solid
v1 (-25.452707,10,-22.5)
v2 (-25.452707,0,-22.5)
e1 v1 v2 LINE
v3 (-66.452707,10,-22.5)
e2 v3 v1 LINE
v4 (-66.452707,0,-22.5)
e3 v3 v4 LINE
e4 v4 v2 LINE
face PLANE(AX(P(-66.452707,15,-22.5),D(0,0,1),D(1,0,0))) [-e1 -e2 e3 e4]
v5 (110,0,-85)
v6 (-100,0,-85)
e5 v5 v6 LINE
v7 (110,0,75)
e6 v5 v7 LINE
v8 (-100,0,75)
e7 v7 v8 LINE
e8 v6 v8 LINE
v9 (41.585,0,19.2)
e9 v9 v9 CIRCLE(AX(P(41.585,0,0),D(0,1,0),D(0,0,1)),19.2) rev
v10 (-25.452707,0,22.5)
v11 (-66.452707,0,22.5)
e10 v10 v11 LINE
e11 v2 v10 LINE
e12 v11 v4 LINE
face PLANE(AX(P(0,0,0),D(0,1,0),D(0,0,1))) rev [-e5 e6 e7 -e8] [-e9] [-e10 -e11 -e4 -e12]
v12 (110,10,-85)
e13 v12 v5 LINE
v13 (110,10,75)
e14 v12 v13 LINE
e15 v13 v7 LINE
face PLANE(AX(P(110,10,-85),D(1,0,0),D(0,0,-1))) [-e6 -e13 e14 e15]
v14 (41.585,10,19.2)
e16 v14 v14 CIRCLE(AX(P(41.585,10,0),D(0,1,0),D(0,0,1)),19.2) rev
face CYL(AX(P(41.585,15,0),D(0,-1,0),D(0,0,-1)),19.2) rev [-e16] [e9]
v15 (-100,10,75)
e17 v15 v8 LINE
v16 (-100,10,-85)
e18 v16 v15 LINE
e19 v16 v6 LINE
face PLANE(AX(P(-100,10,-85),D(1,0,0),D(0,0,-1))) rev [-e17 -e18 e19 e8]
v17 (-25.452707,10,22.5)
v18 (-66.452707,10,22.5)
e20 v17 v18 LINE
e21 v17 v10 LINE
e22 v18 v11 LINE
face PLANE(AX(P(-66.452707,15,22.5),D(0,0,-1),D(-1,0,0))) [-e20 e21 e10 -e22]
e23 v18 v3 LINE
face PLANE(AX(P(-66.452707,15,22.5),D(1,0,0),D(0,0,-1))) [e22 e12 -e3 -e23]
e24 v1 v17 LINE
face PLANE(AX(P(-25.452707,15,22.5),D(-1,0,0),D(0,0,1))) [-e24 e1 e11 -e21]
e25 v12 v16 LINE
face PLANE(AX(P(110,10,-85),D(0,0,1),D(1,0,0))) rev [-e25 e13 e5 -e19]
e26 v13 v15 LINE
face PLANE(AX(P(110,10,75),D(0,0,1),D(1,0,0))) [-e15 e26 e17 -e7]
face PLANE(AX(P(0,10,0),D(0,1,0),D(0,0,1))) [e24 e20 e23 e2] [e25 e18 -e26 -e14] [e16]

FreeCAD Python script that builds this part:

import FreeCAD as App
import Part
import Sketcher
from FreeCAD import Vector

doc = App.newDocument("Part")
params = doc.addObject("Spreadsheet::Sheet", "Params")
for row, (alias, value) in enumerate([
    ("sketch1_width", "210 mm"),
    ("sketch1_height", "160 mm"),
    ("pad1_length", "10 mm"),
    ("sketch2_diameter", "38.4 mm"),
    ("sketch2_width", "41 mm"),
    ("sketch2_height", "45 mm"),
], start=1):
    params.set(f"A{row}", alias)
    params.set(f"B{row}", "=" + value)
    params.setAlias(f"B{row}", alias)

body = doc.addObject("PartDesign::Body", "Body")

# Sketch on XZ plane
sketch1 = body.newObject("Sketcher::SketchObject", "Sketch")
sketch1.AttachmentSupport = (doc.getObject("XZ_Plane"), [""])
sketch1.MapMode = "FlatFace"
sketch1.addGeometry(Part.LineSegment(Vector(-100, -85, 0), Vector(-100, 75, 0)), False)
sketch1.addGeometry(Part.LineSegment(Vector(-100, 75, 0), Vector(110, 75, 0)), False)
sketch1.addGeometry(Part.LineSegment(Vector(110, 75, 0), Vector(110, -85, 0)), False)
sketch1.addGeometry(Part.LineSegment(Vector(110, -85, 0), Vector(-100, -85, 0)), False)
sketch1.addConstraint(Sketcher.Constraint("Coincident", 0, 2, 1, 1))
sketch1.addConstraint(Sketcher.Constraint("Coincident", 1, 2, 2, 1))
sketch1.addConstraint(Sketcher.Constraint("Coincident", 2, 2, 3, 1))
sketch1.addConstraint(Sketcher.Constraint("Coincident", 3, 2, 0, 1))
sketch1.addConstraint(Sketcher.Constraint("Vertical", 0))
sketch1.addConstraint(Sketcher.Constraint("Horizontal", 1))
sketch1.addConstraint(Sketcher.Constraint("Vertical", 2))
sketch1.addConstraint(Sketcher.Constraint("Horizontal", 3))
sketch1.addConstraint(Sketcher.Constraint("DistanceX", 1, 1, 1, 2, 210.0))
sketch1.addConstraint(Sketcher.Constraint("DistanceY", 0, 1, 0, 2, 160.0))
sketch1.addConstraint(Sketcher.Constraint("DistanceX", 0, 2, -1, 1, 100.0))
sketch1.addConstraint(Sketcher.Constraint("DistanceY", -1, 1, 0, 2, 75.0))
sketch1.setExpression("Constraints[8]", "Params.sketch1_width")
sketch1.setExpression("Constraints[9]", "Params.sketch1_height")
pad1 = body.newObject("PartDesign::Pad", "Pad")
pad1.Profile = sketch1
pad1.setExpression("Length", "Params.pad1_length")
pad1.Reversed = True

# Sketch on XZ plane
sketch2 = body.newObject("Sketcher::SketchObject", "Sketch001")
sketch2.AttachmentSupport = (doc.getObject("XZ_Plane"), [""])
sketch2.MapMode = "FlatFace"
sketch2.addGeometry(Part.Circle(Vector(41.585, 0, 0), Vector(0, 0, 1), 19.2), False)
sketch2.addGeometry(Part.LineSegment(Vector(-66.452707, -22.5, 0), Vector(-66.452707, 22.5, 0)), False)
sketch2.addGeometry(Part.LineSegment(Vector(-66.452707, 22.5, 0), Vector(-25.452707, 22.5, 0)), False)
sketch2.addGeometry(Part.LineSegment(Vector(-25.452707, 22.5, 0), Vector(-25.452707, -22.5, 0)), False)
sketch2.addGeometry(Part.LineSegment(Vector(-25.452707, -22.5, 0), Vector(-66.452707, -22.5, 0)), False)
sketch2.addConstraint(Sketcher.Constraint("Coincident", 1, 2, 2, 1))
sketch2.addConstraint(Sketcher.Constraint("Coincident", 2, 2, 3, 1))
sketch2.addConstraint(Sketcher.Constraint("Coincident", 3, 2, 4, 1))
sketch2.addConstraint(Sketcher.Constraint("Coincident", 4, 2, 1, 1))
sketch2.addConstraint(Sketcher.Constraint("Vertical", 1))
sketch2.addConstraint(Sketcher.Constraint("Horizontal", 2))
sketch2.addConstraint(Sketcher.Constraint("Vertical", 3))
sketch2.addConstraint(Sketcher.Constraint("Horizontal", 4))
sketch2.addConstraint(Sketcher.Constraint("PointOnObject", 0, 3, -1))
sketch2.addConstraint(Sketcher.Constraint("Diameter", 0, 38.4))
sketch2.addConstraint(Sketcher.Constraint("DistanceX", 2, 1, 2, 2, 41.0))
sketch2.addConstraint(Sketcher.Constraint("DistanceY", 1, 1, 1, 2, 45.0))
sketch2.addConstraint(Sketcher.Constraint("DistanceY", -1, 1, 1, 2, 22.5))
sketch2.addConstraint(Sketcher.Constraint("DistanceX", -1, 1, 0, 3, 41.585))
sketch2.addConstraint(Sketcher.Constraint("DistanceX", 1, 2, -1, 1, 66.452707))
sketch2.setExpression("Constraints[9]", "Params.sketch2_diameter")
sketch2.setExpression("Constraints[10]", "Params.sketch2_width")
sketch2.setExpression("Constraints[11]", "Params.sketch2_height")
pocket1 = body.newObject("PartDesign::Pocket", "Pocket")
pocket1.Profile = sketch2
pocket1.Type = "ThroughAll"
pocket1.Midplane = True

doc.recompute()
